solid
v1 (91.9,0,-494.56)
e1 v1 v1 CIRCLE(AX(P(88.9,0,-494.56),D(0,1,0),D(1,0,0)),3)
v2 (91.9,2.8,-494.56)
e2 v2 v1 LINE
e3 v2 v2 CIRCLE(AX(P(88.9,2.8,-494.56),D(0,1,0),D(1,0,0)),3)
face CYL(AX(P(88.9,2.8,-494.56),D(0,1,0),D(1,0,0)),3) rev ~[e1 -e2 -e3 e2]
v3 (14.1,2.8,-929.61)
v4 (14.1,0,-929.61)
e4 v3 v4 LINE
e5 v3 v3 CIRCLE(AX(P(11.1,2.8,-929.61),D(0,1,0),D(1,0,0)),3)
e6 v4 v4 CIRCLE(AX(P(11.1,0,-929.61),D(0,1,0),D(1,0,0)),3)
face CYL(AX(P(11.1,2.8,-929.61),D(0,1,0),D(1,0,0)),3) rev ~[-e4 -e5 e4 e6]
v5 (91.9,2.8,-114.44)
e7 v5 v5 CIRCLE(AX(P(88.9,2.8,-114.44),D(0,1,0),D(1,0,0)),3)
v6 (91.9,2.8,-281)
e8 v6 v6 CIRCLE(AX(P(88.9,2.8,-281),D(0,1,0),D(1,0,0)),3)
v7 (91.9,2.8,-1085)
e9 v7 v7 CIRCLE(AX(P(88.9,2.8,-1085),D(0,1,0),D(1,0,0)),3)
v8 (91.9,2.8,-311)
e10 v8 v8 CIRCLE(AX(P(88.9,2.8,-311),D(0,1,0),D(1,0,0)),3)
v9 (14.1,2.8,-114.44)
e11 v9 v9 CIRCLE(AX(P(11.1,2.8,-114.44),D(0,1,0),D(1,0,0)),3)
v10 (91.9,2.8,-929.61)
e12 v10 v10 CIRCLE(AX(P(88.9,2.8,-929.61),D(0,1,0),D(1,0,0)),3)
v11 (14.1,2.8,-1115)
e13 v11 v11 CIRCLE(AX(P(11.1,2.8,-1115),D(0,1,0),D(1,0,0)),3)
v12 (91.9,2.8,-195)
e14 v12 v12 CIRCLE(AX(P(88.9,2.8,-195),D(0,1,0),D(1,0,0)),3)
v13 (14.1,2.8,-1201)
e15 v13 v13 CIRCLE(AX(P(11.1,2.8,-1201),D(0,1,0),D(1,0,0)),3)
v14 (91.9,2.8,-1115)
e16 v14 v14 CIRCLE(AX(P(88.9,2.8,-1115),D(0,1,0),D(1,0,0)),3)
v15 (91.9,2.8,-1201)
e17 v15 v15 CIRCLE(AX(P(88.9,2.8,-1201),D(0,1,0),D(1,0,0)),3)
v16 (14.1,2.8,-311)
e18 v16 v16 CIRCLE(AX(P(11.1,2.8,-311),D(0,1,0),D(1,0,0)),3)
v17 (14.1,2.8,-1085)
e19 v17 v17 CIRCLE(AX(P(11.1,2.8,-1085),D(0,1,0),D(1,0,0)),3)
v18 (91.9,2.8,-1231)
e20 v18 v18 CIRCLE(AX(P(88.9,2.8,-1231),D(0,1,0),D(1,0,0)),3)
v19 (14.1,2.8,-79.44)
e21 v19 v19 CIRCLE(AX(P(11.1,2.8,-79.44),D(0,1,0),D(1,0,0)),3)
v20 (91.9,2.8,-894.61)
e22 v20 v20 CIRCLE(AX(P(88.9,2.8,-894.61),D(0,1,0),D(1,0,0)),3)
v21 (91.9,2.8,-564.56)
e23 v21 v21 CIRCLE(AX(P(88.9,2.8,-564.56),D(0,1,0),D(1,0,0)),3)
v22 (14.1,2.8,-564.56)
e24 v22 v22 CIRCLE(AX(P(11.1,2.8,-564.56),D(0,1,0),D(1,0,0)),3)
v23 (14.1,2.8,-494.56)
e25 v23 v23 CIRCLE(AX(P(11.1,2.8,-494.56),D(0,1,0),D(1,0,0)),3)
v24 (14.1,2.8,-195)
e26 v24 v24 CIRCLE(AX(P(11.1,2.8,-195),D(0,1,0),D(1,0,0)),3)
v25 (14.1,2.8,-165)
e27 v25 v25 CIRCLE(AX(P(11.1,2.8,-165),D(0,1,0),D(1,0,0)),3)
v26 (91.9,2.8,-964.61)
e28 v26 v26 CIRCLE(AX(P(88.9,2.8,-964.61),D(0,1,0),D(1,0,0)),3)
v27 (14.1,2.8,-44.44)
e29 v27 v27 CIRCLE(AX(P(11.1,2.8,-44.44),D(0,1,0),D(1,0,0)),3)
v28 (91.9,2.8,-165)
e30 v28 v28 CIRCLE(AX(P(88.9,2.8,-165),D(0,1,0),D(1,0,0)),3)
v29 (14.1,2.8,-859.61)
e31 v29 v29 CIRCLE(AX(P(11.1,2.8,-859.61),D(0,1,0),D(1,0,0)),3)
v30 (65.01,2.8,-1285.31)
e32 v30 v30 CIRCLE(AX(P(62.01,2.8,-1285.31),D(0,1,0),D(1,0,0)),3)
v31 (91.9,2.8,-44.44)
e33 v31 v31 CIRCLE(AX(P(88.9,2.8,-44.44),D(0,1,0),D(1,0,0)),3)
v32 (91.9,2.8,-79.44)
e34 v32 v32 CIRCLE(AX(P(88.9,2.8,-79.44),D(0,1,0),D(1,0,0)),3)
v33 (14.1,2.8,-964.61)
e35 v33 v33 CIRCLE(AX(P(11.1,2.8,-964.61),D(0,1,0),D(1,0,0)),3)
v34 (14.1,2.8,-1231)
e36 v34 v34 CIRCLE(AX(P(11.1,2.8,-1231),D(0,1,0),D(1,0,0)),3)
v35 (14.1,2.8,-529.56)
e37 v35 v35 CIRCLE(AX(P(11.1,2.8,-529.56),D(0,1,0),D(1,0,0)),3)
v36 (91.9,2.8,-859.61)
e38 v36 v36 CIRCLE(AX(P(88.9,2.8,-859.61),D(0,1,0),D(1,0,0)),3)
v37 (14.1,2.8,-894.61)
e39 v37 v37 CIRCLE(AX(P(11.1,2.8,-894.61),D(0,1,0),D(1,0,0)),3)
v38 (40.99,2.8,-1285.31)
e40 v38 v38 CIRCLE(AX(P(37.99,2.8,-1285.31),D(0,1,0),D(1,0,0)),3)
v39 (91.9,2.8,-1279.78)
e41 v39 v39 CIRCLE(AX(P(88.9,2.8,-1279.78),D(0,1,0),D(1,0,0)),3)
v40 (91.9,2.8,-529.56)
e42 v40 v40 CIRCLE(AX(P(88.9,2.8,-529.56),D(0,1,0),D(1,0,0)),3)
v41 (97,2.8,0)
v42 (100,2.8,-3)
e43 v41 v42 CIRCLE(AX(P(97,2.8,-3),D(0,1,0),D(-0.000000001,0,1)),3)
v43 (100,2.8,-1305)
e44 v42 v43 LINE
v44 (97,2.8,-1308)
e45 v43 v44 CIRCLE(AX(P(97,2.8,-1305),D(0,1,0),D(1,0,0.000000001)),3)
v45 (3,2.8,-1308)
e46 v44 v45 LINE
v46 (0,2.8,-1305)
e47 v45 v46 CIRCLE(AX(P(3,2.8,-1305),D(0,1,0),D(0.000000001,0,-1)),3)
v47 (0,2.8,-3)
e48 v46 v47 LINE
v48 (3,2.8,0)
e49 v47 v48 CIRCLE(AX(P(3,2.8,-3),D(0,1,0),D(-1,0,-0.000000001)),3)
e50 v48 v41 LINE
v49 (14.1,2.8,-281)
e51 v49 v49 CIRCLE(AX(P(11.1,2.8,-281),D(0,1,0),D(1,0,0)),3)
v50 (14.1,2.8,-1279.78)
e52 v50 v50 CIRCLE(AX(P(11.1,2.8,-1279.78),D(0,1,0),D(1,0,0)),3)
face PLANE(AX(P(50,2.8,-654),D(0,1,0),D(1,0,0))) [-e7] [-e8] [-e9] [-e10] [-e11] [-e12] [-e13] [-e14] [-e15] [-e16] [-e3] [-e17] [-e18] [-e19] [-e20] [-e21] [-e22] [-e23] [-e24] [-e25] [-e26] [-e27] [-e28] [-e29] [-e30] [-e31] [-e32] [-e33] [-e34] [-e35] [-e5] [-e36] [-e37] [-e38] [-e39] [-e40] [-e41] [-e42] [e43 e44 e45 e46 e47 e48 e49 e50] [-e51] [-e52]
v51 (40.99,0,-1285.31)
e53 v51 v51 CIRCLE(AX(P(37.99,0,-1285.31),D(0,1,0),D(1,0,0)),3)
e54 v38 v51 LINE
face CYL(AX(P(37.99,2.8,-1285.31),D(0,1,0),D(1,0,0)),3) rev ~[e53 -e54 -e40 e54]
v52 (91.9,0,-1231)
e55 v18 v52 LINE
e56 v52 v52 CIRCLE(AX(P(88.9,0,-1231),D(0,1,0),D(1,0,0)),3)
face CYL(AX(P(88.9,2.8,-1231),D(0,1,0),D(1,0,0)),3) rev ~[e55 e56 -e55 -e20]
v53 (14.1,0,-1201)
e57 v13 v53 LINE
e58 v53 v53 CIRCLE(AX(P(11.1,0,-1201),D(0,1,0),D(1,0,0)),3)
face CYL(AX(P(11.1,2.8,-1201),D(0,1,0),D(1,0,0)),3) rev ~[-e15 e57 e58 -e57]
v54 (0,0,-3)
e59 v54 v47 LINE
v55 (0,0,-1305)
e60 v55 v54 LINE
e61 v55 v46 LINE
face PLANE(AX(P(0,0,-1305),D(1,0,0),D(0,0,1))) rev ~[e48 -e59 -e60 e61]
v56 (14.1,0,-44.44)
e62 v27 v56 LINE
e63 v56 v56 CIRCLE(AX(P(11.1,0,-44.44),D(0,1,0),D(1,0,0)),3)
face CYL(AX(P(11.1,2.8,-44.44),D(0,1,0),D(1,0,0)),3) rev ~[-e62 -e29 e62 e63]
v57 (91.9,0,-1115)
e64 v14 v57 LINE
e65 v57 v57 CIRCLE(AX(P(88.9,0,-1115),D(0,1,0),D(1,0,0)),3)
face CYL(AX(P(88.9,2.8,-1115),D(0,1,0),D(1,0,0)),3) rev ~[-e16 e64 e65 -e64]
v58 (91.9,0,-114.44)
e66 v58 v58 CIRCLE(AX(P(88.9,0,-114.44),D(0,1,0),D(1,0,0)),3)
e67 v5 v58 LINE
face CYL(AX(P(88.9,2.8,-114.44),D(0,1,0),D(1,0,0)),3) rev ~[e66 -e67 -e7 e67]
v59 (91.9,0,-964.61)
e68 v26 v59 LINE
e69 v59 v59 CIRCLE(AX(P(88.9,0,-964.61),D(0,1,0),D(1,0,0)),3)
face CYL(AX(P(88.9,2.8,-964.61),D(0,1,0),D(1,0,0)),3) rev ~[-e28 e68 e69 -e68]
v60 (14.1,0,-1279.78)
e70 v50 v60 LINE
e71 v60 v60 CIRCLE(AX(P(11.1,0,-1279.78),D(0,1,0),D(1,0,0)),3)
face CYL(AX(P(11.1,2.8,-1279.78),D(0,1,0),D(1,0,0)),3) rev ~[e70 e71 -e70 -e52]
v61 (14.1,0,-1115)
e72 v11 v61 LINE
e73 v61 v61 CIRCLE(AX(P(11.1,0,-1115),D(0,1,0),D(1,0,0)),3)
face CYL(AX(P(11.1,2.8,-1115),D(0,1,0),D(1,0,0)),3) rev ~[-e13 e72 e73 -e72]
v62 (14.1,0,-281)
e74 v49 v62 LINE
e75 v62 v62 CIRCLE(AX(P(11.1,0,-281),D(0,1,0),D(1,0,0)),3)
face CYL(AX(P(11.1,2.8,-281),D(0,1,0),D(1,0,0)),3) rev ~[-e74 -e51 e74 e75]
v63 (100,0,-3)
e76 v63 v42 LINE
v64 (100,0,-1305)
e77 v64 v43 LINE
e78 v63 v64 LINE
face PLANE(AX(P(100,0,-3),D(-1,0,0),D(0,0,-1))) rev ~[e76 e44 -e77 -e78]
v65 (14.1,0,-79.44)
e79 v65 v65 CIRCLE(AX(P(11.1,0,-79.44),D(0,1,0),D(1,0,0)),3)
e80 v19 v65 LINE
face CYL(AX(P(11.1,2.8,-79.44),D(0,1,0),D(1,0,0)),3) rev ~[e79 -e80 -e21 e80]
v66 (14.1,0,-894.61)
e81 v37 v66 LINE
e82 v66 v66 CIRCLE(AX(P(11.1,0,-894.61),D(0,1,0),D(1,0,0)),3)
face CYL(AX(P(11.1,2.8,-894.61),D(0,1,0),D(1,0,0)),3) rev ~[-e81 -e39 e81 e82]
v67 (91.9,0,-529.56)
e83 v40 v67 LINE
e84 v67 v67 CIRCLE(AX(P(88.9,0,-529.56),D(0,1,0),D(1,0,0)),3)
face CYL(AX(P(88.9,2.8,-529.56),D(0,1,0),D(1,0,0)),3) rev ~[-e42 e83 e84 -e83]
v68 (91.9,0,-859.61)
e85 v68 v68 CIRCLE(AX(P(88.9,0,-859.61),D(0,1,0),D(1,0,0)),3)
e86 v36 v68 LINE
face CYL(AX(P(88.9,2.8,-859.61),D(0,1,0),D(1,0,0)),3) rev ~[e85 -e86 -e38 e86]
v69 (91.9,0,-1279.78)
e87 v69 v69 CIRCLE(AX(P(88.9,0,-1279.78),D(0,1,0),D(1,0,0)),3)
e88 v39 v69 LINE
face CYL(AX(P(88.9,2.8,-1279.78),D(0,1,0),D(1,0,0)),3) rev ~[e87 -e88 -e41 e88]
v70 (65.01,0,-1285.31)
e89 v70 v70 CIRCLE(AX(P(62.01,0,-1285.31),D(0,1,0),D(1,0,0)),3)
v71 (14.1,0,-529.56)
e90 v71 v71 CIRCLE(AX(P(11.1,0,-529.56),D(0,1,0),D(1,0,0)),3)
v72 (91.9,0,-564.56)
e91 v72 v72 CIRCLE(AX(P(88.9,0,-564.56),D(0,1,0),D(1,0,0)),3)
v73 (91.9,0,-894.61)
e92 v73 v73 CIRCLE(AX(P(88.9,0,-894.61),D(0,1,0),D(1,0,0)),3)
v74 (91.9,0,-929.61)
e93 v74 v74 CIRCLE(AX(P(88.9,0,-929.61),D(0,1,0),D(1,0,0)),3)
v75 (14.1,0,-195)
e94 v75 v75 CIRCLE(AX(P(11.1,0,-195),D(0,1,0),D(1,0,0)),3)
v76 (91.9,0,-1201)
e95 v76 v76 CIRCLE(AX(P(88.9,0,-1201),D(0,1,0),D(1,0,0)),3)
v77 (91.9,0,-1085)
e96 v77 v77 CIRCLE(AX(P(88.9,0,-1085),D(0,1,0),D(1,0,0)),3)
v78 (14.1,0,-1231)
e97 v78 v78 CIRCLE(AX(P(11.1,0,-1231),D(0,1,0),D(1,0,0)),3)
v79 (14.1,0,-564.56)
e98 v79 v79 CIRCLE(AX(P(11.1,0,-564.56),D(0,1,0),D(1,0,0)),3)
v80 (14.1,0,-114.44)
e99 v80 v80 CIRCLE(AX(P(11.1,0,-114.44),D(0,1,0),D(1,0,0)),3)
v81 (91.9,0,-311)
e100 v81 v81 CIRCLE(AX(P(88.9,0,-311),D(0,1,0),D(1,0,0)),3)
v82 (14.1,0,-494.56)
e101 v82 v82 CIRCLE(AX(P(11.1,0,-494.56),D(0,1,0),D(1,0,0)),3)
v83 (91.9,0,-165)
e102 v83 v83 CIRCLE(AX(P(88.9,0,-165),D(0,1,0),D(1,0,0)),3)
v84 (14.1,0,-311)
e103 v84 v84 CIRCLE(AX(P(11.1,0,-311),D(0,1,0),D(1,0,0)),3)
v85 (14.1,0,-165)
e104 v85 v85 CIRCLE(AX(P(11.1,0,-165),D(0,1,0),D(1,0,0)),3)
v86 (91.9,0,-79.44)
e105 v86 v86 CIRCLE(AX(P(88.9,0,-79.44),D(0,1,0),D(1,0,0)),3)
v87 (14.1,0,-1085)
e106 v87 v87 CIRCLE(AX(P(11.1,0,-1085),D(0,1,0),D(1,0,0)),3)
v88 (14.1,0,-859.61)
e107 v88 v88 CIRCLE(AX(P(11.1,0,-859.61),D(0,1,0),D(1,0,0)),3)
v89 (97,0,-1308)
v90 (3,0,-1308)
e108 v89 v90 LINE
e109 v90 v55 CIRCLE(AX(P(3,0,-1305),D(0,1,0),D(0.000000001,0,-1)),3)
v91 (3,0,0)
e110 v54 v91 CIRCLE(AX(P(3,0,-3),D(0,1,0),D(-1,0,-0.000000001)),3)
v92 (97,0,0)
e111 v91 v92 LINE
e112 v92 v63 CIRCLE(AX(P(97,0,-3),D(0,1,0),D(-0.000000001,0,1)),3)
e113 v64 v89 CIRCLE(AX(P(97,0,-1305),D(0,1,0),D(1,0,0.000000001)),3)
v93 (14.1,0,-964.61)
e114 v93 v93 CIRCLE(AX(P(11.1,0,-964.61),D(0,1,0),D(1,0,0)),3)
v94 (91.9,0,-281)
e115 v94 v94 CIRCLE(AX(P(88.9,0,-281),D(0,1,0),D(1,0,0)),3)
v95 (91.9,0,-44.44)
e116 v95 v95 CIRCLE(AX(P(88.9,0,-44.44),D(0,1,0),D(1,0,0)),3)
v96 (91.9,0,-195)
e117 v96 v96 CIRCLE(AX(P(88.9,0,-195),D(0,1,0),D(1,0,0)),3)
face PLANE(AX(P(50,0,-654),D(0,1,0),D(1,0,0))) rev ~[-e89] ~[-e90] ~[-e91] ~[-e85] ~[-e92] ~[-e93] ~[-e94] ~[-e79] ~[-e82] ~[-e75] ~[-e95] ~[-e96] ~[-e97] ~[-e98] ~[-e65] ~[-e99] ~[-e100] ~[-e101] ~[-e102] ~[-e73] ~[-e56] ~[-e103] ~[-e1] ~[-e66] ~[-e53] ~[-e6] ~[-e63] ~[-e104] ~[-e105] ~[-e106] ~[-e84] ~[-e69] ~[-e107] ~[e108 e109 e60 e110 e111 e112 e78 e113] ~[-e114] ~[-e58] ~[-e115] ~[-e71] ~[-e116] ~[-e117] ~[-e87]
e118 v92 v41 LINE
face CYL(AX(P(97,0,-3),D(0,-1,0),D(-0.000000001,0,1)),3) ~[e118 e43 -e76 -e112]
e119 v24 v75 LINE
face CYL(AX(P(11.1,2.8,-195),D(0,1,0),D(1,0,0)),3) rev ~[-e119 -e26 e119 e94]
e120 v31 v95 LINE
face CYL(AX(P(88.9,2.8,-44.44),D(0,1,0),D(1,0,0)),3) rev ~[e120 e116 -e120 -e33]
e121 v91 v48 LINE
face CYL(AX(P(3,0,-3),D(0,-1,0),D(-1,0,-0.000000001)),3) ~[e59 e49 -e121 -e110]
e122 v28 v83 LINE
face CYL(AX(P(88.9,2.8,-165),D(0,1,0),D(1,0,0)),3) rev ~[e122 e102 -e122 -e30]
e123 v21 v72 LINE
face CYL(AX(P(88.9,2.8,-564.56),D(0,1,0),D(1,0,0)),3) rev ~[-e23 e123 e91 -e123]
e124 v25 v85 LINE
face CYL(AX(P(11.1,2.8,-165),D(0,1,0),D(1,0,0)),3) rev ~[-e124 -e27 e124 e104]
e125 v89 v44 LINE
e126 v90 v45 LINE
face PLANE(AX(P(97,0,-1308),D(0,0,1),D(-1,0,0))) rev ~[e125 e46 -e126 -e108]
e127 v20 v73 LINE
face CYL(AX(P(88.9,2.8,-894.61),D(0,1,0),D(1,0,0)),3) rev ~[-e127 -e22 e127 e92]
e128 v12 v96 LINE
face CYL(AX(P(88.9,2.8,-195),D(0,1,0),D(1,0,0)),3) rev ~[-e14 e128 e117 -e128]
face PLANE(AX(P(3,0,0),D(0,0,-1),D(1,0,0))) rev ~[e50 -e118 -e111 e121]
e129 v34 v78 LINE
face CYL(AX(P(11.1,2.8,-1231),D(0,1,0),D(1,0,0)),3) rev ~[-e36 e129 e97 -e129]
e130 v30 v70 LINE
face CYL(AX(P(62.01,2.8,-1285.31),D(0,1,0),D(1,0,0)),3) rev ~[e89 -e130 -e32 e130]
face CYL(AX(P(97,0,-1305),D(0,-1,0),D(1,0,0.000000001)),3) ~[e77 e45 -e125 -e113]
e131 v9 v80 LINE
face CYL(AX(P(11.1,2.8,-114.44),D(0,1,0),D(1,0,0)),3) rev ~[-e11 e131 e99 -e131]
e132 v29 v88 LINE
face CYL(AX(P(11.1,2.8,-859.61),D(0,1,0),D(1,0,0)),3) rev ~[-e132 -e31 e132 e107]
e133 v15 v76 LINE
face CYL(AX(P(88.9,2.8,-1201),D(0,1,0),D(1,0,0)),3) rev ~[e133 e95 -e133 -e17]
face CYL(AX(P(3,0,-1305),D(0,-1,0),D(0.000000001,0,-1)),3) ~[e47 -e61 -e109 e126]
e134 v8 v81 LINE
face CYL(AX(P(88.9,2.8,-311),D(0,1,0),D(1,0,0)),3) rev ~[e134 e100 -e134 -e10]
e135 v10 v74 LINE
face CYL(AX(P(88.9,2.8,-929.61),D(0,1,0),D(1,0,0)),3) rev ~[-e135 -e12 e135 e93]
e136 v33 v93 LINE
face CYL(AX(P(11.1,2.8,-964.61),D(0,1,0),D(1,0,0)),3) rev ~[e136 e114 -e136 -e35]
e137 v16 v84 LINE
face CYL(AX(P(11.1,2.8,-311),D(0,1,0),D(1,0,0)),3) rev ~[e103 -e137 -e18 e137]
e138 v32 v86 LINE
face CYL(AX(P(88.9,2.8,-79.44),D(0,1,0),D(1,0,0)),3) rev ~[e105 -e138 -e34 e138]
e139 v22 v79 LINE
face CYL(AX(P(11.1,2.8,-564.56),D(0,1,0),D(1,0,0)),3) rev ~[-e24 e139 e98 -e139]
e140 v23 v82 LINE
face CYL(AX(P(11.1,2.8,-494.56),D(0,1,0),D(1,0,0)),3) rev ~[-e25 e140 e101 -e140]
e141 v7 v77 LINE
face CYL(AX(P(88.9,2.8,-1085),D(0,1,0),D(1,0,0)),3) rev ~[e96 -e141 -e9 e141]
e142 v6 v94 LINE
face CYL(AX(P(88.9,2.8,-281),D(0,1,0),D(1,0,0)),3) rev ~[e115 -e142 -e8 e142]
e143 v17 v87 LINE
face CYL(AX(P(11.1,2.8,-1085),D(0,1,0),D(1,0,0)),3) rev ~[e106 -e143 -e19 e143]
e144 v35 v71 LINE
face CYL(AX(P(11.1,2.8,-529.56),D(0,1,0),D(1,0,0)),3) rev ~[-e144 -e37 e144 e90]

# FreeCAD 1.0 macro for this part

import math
import FreeCAD as App
import Part
import Sketcher
Q = App.Units.Quantity

doc = App.newDocument("Part")
body = doc.addObject("PartDesign::Body", "Body")

# Sketch on XZ plane
sketch1 = body.newObject("Sketcher::SketchObject", "Sketch")
sketch1.AttachmentSupport = (doc.getObject("XZ_Plane"), [""])
sketch1.MapMode = "FlatFace"
sketch1.addGeometry(Part.LineSegment(App.Vector(3, 0, 0), App.Vector(97, 0, 0)), False)
sketch1.addGeometry(Part.ArcOfCircle(Part.Circle(App.Vector(97, -3, 0), App.Vector(0, 0, 1), 3), math.radians(0), math.radians(90)), False)
sketch1.addGeometry(Part.LineSegment(App.Vector(100, -3, 0), App.Vector(100, -1305, 0)), False)
sketch1.addGeometry(Part.ArcOfCircle(Part.Circle(App.Vector(97, -1305, 0), App.Vector(0, 0, 1), 3), math.radians(-90), math.radians(0)), False)
sketch1.addGeometry(Part.LineSegment(App.Vector(97, -1308, 0), App.Vector(3, -1308, 0)), False)
sketch1.addGeometry(Part.ArcOfCircle(Part.Circle(App.Vector(3, -1305, 0), App.Vector(0, 0, 1), 3), math.radians(180), math.radians(270)), False)
sketch1.addGeometry(Part.LineSegment(App.Vector(0, -1305, 0), App.Vector(0, -3, 0)), False)
sketch1.addGeometry(Part.ArcOfCircle(Part.Circle(App.Vector(3, -3, 0), App.Vector(0, 0, 1), 3), math.radians(90), math.radians(180)), False)
sketch1.addConstraint(Sketcher.Constraint("Tangent", 0, 2, 1, 2))
sketch1.addConstraint(Sketcher.Constraint("Tangent", 1, 1, 2, 1))
sketch1.addConstraint(Sketcher.Constraint("Tangent", 2, 2, 3, 2))
sketch1.addConstraint(Sketcher.Constraint("Tangent", 3, 1, 4, 1))
sketch1.addConstraint(Sketcher.Constraint("Tangent", 4, 2, 5, 2))
sketch1.addConstraint(Sketcher.Constraint("Tangent", 5, 1, 6, 1))
sketch1.addConstraint(Sketcher.Constraint("Tangent", 6, 2, 7, 2))
sketch1.addConstraint(Sketcher.Constraint("Tangent", 7, 1, 0, 1))
sketch1.addConstraint(Sketcher.Constraint("Horizontal", 0))
sketch1.addConstraint(Sketcher.Constraint("Vertical", 2))
sketch1.addConstraint(Sketcher.Constraint("Horizontal", 4))
sketch1.addConstraint(Sketcher.Constraint("Vertical", 6))
sketch1.addConstraint(Sketcher.Constraint("Equal", 1, 3))
sketch1.addConstraint(Sketcher.Constraint("Equal", 3, 5))
sketch1.addConstraint(Sketcher.Constraint("Equal", 5, 7))
sketch1.addConstraint(Sketcher.Constraint("PointOnObject", 0, 2, -1))
sketch1.addConstraint(Sketcher.Constraint("PointOnObject", 5, 1, -2))
sketch1.addConstraint(Sketcher.Constraint("Radius", 1, Q("3 mm")))
sketch1.addConstraint(Sketcher.Constraint("DistanceX", 0, 1, 0, 2, Q("94 mm")))
sketch1.addConstraint(Sketcher.Constraint("DistanceY", 2, 2, 2, 1, Q("1302 mm")))
pad1 = body.newObject("PartDesign::Pad", "Pad")
pad1.Profile = sketch1
pad1.Length = 2.8
pad1.Reversed = True

# Sketch on XZ plane
sketch2 = body.newObject("Sketcher::SketchObject", "Sketch001")
sketch2.AttachmentSupport = (doc.getObject("XZ_Plane"), [""])
sketch2.MapMode = "FlatFace"
sketch2.AttachmentOffset = App.Placement(App.Vector(0, 0, -2.8), App.Rotation())
sketch2.addGeometry(Part.Circle(App.Vector(88.9, -1279.78, 0), App.Vector(0, 0, 1), 3), False)
sketch2.addConstraint(Sketcher.Constraint("Diameter", 0, Q("6 mm")))
sketch2.addConstraint(Sketcher.Constraint("DistanceX", -1, 1, 0, 3, Q("88.9 mm")))
sketch2.addConstraint(Sketcher.Constraint("DistanceY", 0, 3, -1, 1, Q("1279.78 mm")))
pocket1 = body.newObject("PartDesign::Pocket", "Pocket")
pocket1.Profile = sketch2
pocket1.Type = "UpToFirst"
pocket1.Reversed = True

# Sketch on XZ plane
sketch3 = body.newObject("Sketcher::SketchObject", "Sketch002")
sketch3.AttachmentSupport = (doc.getObject("XZ_Plane"), [""])
sketch3.MapMode = "FlatFace"
sketch3.AttachmentOffset = App.Placement(App.Vector(0, 0, -2.8), App.Rotation())
sketch3.addGeometry(Part.Circle(App.Vector(88.9, -929.61, 0), App.Vector(0, 0, 1), 3), False)
sketch3.addConstraint(Sketcher.Constraint("Diameter", 0, Q("6 mm")))
sketch3.addConstraint(Sketcher.Constraint("DistanceX", -1, 1, 0, 3, Q("88.9 mm")))
sketch3.addConstraint(Sketcher.Constraint("DistanceY", 0, 3, -1, 1, Q("929.61 mm")))
pocket2 = body.newObject("PartDesign::Pocket", "Pocket001")
pocket2.Profile = sketch3
pocket2.Type = "UpToFirst"
pocket2.Reversed = True

# Sketch on XZ plane
sketch4 = body.newObject("Sketcher::SketchObject", "Sketch003")
sketch4.AttachmentSupport = (doc.getObject("XZ_Plane"), [""])
sketch4.MapMode = "FlatFace"
sketch4.AttachmentOffset = App.Placement(App.Vector(0, 0, -2.8), App.Rotation())
sketch4.addGeometry(Part.Circle(App.Vector(88.9, -529.56, 0), App.Vector(0, 0, 1), 3), False)
sketch4.addConstraint(Sketcher.Constraint("Diameter", 0, Q("6 mm")))
sketch4.addConstraint(Sketcher.Constraint("DistanceX", -1, 1, 0, 3, Q("88.9 mm")))
sketch4.addConstraint(Sketcher.Constraint("DistanceY", 0, 3, -1, 1, Q("529.56 mm")))
pocket3 = body.newObject("PartDesign::Pocket", "Pocket002")
pocket3.Profile = sketch4
pocket3.Type = "UpToFirst"
pocket3.Reversed = True

# Sketch on XZ plane
sketch5 = body.newObject("Sketcher::SketchObject", "Sketch004")
sketch5.AttachmentSupport = (doc.getObject("XZ_Plane"), [""])
sketch5.MapMode = "FlatFace"
sketch5.AttachmentOffset = App.Placement(App.Vector(0, 0, -2.8), App.Rotation())
sketch5.addGeometry(Part.Circle(App.Vector(88.9, -79.44, 0), App.Vector(0, 0, 1), 3), False)
sketch5.addConstraint(Sketcher.Constraint("Diameter", 0, Q("6 mm")))
sketch5.addConstraint(Sketcher.Constraint("DistanceX", -1, 1, 0, 3, Q("88.9 mm")))
sketch5.addConstraint(Sketcher.Constraint("DistanceY", 0, 3, -1, 1, Q("79.44 mm")))
pocket4 = body.newObject("PartDesign::Pocket", "Pocket003")
pocket4.Profile = sketch5
pocket4.Type = "UpToFirst"
pocket4.Reversed = True

# Sketch on XZ plane
sketch6 = body.newObject("Sketcher::SketchObject", "Sketch005")
sketch6.AttachmentSupport = (doc.getObject("XZ_Plane"), [""])
sketch6.MapMode = "FlatFace"
sketch6.AttachmentOffset = App.Placement(App.Vector(0, 0, -2.8), App.Rotation())
sketch6.addGeometry(Part.Circle(App.Vector(11.1, -79.44, 0), App.Vector(0, 0, 1), 3), False)
sketch6.addConstraint(Sketcher.Constraint("Diameter", 0, Q("6 mm")))
sketch6.addConstraint(Sketcher.Constraint("DistanceX", -1, 1, 0, 3, Q("11.1 mm")))
sketch6.addConstraint(Sketcher.Constraint("DistanceY", 0, 3, -1, 1, Q("79.44 mm")))
pocket5 = body.newObject("PartDesign::Pocket", "Pocket004")
pocket5.Profile = sketch6
pocket5.Type = "UpToFirst"
pocket5.Reversed = True

# Sketch on XZ plane
sketch7 = body.newObject("Sketcher::SketchObject", "Sketch006")
sketch7.AttachmentSupport = (doc.getObject("XZ_Plane"), [""])
sketch7.MapMode = "FlatFace"
sketch7.AttachmentOffset = App.Placement(App.Vector(0, 0, -2.8), App.Rotation())
sketch7.addGeometry(Part.Circle(App.Vector(11.1, -529.56, 0), App.Vector(0, 0, 1), 3), False)
sketch7.addConstraint(Sketcher.Constraint("Diameter", 0, Q("6 mm")))
sketch7.addConstraint(Sketcher.Constraint("DistanceX", -1, 1, 0, 3, Q("11.1 mm")))
sketch7.addConstraint(Sketcher.Constraint("DistanceY", 0, 3, -1, 1, Q("529.56 mm")))
pocket6 = body.newObject("PartDesign::Pocket", "Pocket005")
pocket6.Profile = sketch7
pocket6.Type = "UpToFirst"
pocket6.Reversed = True

# Sketch on XZ plane
sketch8 = body.newObject("Sketcher::SketchObject", "Sketch007")
sketch8.AttachmentSupport = (doc.getObject("XZ_Plane"), [""])
sketch8.MapMode = "FlatFace"
sketch8.AttachmentOffset = App.Placement(App.Vector(0, 0, -2.8), App.Rotation())
sketch8.addGeometry(Part.Circle(App.Vector(11.1, -929.61, 0), App.Vector(0, 0, 1), 3), False)
sketch8.addConstraint(Sketcher.Constraint("Diameter", 0, Q("6 mm")))
sketch8.addConstraint(Sketcher.Constraint("DistanceX", -1, 1, 0, 3, Q("11.1 mm")))
sketch8.addConstraint(Sketcher.Constraint("DistanceY", 0, 3, -1, 1, Q("929.61 mm")))
pocket7 = body.newObject("PartDesign::Pocket", "Pocket006")
pocket7.Profile = sketch8
pocket7.Type = "UpToFirst"
pocket7.Reversed = True

# Sketch on XZ plane
sketch9 = body.newObject("Sketcher::SketchObject", "Sketch008")
sketch9.AttachmentSupport = (doc.getObject("XZ_Plane"), [""])
sketch9.MapMode = "FlatFace"
sketch9.AttachmentOffset = App.Placement(App.Vector(0, 0, -2.8), App.Rotation())
sketch9.addGeometry(Part.Circle(App.Vector(11.1, -1279.78, 0), App.Vector(0, 0, 1), 3), False)
sketch9.addConstraint(Sketcher.Constraint("Diameter", 0, Q("6 mm")))
sketch9.addConstraint(Sketcher.Constraint("DistanceX", -1, 1, 0, 3, Q("11.1 mm")))
sketch9.addConstraint(Sketcher.Constraint("DistanceY", 0, 3, -1, 1, Q("1279.78 mm")))
pocket8 = body.newObject("PartDesign::Pocket", "Pocket007")
pocket8.Profile = sketch9
pocket8.Type = "UpToFirst"
pocket8.Reversed = True

# Sketch on XZ plane
sketch10 = body.newObject("Sketcher::SketchObject", "Sketch009")
sketch10.AttachmentSupport = (doc.getObject("XZ_Plane"), [""])
sketch10.MapMode = "FlatFace"
sketch10.AttachmentOffset = App.Placement(App.Vector(0, 0, -2.8), App.Rotation())
sketch10.addGeometry(Part.Circle(App.Vector(88.9, -1201, 0), App.Vector(0, 0, 1), 3), False)
sketch10.addConstraint(Sketcher.Constraint("Diameter", 0, Q("6 mm")))
sketch10.addConstraint(Sketcher.Constraint("DistanceY", 0, 3, -1, 1, Q("1201 mm")))
sketch10.addConstraint(Sketcher.Constraint("DistanceX", -1, 1, 0, 3, Q("88.9 mm")))
pocket9 = body.newObject("PartDesign::Pocket", "Pocket008")
pocket9.Profile = sketch10
pocket9.Type = "UpToFirst"
pocket9.Reversed = True

# Sketch on XZ plane
sketch11 = body.newObject("Sketcher::SketchObject", "Sketch010")
sketch11.AttachmentSupport = (doc.getObject("XZ_Plane"), [""])
sketch11.MapMode = "FlatFace"
sketch11.AttachmentOffset = App.Placement(App.Vector(0, 0, -2.8), App.Rotation())
sketch11.addGeometry(Part.Circle(App.Vector(88.9, -1115, 0), App.Vector(0, 0, 1), 3), False)
sketch11.addConstraint(Sketcher.Constraint("Diameter", 0, Q("6 mm")))
sketch11.addConstraint(Sketcher.Constraint("DistanceY", 0, 3, -1, 1, Q("1115 mm")))
sketch11.addConstraint(Sketcher.Constraint("DistanceX", -1, 1, 0, 3, Q("88.9 mm")))
pocket10 = body.newObject("PartDesign::Pocket", "Pocket009")
pocket10.Profile = sketch11
pocket10.Type = "UpToFirst"
pocket10.Reversed = True

# Sketch on XZ plane
sketch12 = body.newObject("Sketcher::SketchObject", "Sketch011")
sketch12.AttachmentSupport = (doc.getObject("XZ_Plane"), [""])
sketch12.MapMode = "FlatFace"
sketch12.AttachmentOffset = App.Placement(App.Vector(0, 0, -2.8), App.Rotation())
sketch12.addGeometry(Part.Circle(App.Vector(11.1, -1115, 0), App.Vector(0, 0, 1), 3), False)
sketch12.addConstraint(Sketcher.Constraint("Diameter", 0, Q("6 mm")))
sketch12.addConstraint(Sketcher.Constraint("DistanceY", 0, 3, -1, 1, Q("1115 mm")))
sketch12.addConstraint(Sketcher.Constraint("DistanceX", -1, 1, 0, 3, Q("11.1 mm")))
pocket11 = body.newObject("PartDesign::Pocket", "Pocket010")
pocket11.Profile = sketch12
pocket11.Type = "UpToFirst"
pocket11.Reversed = True

# Sketch on XZ plane
sketch13 = body.newObject("Sketcher::SketchObject", "Sketch012")
sketch13.AttachmentSupport = (doc.getObject("XZ_Plane"), [""])
sketch13.MapMode = "FlatFace"
sketch13.AttachmentOffset = App.Placement(App.Vector(0, 0, -2.8), App.Rotation())
sketch13.addGeometry(Part.Circle(App.Vector(11.1, -1201, 0), App.Vector(0, 0, 1), 3), False)
sketch13.addConstraint(Sketcher.Constraint("Diameter", 0, Q("6 mm")))
sketch13.addConstraint(Sketcher.Constraint("DistanceY", 0, 3, -1, 1, Q("1201 mm")))
sketch13.addConstraint(Sketcher.Constraint("DistanceX", -1, 1, 0, 3, Q("11.1 mm")))
pocket12 = body.newObject("PartDesign::Pocket", "Pocket011")
pocket12.Profile = sketch13
pocket12.Type = "UpToFirst"
pocket12.Reversed = True

# Sketch on XZ plane
sketch14 = body.newObject("Sketcher::SketchObject", "Sketch013")
sketch14.AttachmentSupport = (doc.getObject("XZ_Plane"), [""])
sketch14.MapMode = "FlatFace"
sketch14.AttachmentOffset = App.Placement(App.Vector(0, 0, -2.8), App.Rotation())
sketch14.addGeometry(Part.Circle(App.Vector(88.9, -281, 0), App.Vector(0, 0, 1), 3), False)
sketch14.addConstraint(Sketcher.Constraint("Diameter", 0, Q("6 mm")))
sketch14.addConstraint(Sketcher.Constraint("DistanceY", 0, 3, -1, 1, Q("281 mm")))
sketch14.addConstraint(Sketcher.Constraint("DistanceX", -1, 1, 0, 3, Q("88.9 mm")))
pocket13 = body.newObject("PartDesign::Pocket", "Pocket012")
pocket13.Profile = sketch14
pocket13.Type = "UpToFirst"
pocket13.Reversed = True

# Sketch on XZ plane
sketch15 = body.newObject("Sketcher::SketchObject", "Sketch014")
sketch15.AttachmentSupport = (doc.getObject("XZ_Plane"), [""])
sketch15.MapMode = "FlatFace"
sketch15.AttachmentOffset = App.Placement(App.Vector(0, 0, -2.8), App.Rotation())
sketch15.addGeometry(Part.Circle(App.Vector(88.9, -195, 0), App.Vector(0, 0, 1), 3), False)
sketch15.addConstraint(Sketcher.Constraint("Diameter", 0, Q("6 mm")))
sketch15.addConstraint(Sketcher.Constraint("DistanceY", 0, 3, -1, 1, Q("195 mm")))
sketch15.addConstraint(Sketcher.Constraint("DistanceX", -1, 1, 0, 3, Q("88.9 mm")))
pocket14 = body.newObject("PartDesign::Pocket", "Pocket013")
pocket14.Profile = sketch15
pocket14.Type = "UpToFirst"
pocket14.Reversed = True

# Sketch on XZ plane
sketch16 = body.newObject("Sketcher::SketchObject", "Sketch015")
sketch16.AttachmentSupport = (doc.getObject("XZ_Plane"), [""])
sketch16.MapMode = "FlatFace"
sketch16.AttachmentOffset = App.Placement(App.Vector(0, 0, -2.8), App.Rotation())
sketch16.addGeometry(Part.Circle(App.Vector(11.1, -195, 0), App.Vector(0, 0, 1), 3), False)
sketch16.addConstraint(Sketcher.Constraint("Diameter", 0, Q("6 mm")))
sketch16.addConstraint(Sketcher.Constraint("DistanceY", 0, 3, -1, 1, Q("195 mm")))
sketch16.addConstraint(Sketcher.Constraint("DistanceX", -1, 1, 0, 3, Q("11.1 mm")))
pocket15 = body.newObject("PartDesign::Pocket", "Pocket014")
pocket15.Profile = sketch16
pocket15.Type = "UpToFirst"
pocket15.Reversed = True

# Sketch on XZ plane
sketch17 = body.newObject("Sketcher::SketchObject", "Sketch016")
sketch17.AttachmentSupport = (doc.getObject("XZ_Plane"), [""])
sketch17.MapMode = "FlatFace"
sketch17.AttachmentOffset = App.Placement(App.Vector(0, 0, -2.8), App.Rotation())
sketch17.addGeometry(Part.Circle(App.Vector(11.1, -281, 0), App.Vector(0, 0, 1), 3), False)
sketch17.addConstraint(Sketcher.Constraint("Diameter", 0, Q("6 mm")))
sketch17.addConstraint(Sketcher.Constraint("DistanceY", 0, 3, -1, 1, Q("281 mm")))
sketch17.addConstraint(Sketcher.Constraint("DistanceX", -1, 1, 0, 3, Q("11.1 mm")))
pocket16 = body.newObject("PartDesign::Pocket", "Pocket015")
pocket16.Profile = sketch17
pocket16.Type = "UpToFirst"
pocket16.Reversed = True

# Sketch on XZ plane
sketch18 = body.newObject("Sketcher::SketchObject", "Sketch017")
sketch18.AttachmentSupport = (doc.getObject("XZ_Plane"), [""])
sketch18.MapMode = "FlatFace"
sketch18.AttachmentOffset = App.Placement(App.Vector(0, 0, -2.8), App.Rotation())
sketch18.addGeometry(Part.Circle(App.Vector(88.9, -1231, 0), App.Vector(0, 0, 1), 3), False)
sketch18.addConstraint(Sketcher.Constraint("Diameter", 0, Q("6 mm")))
sketch18.addConstraint(Sketcher.Constraint("DistanceY", 0, 3, -1, 1, Q("1231 mm")))
sketch18.addConstraint(Sketcher.Constraint("DistanceX", -1, 1, 0, 3, Q("88.9 mm")))
pocket17 = body.newObject("PartDesign::Pocket", "Pocket016")
pocket17.Profile = sketch18
pocket17.Type = "UpToFirst"
pocket17.Reversed = True

# Sketch on XZ plane
sketch19 = body.newObject("Sketcher::SketchObject", "Sketch018")
sketch19.AttachmentSupport = (doc.getObject("XZ_Plane"), [""])
sketch19.MapMode = "FlatFace"
sketch19.AttachmentOffset = App.Placement(App.Vector(0, 0, -2.8), App.Rotation())
sketch19.addGeometry(Part.Circle(App.Vector(88.9, -1085, 0), App.Vector(0, 0, 1), 3), False)
sketch19.addConstraint(Sketcher.Constraint("Diameter", 0, Q("6 mm")))
sketch19.addConstraint(Sketcher.Constraint("DistanceY", 0, 3, -1, 1, Q("1085 mm")))
sketch19.addConstraint(Sketcher.Constraint("DistanceX", -1, 1, 0, 3, Q("88.9 mm")))
pocket18 = body.newObject("PartDesign::Pocket", "Pocket017")
pocket18.Profile = sketch19
pocket18.Type = "UpToFirst"
pocket18.Reversed = True

# Sketch on XZ plane
sketch20 = body.newObject("Sketcher::SketchObject", "Sketch019")
sketch20.AttachmentSupport = (doc.getObject("XZ_Plane"), [""])
sketch20.MapMode = "FlatFace"
sketch20.AttachmentOffset = App.Placement(App.Vector(0, 0, -2.8), App.Rotation())
sketch20.addGeometry(Part.Circle(App.Vector(88.9, -964.61, 0), App.Vector(0, 0, 1), 3), False)
sketch20.addConstraint(Sketcher.Constraint("Diameter", 0, Q("6 mm")))
sketch20.addConstraint(Sketcher.Constraint("DistanceX", -1, 1, 0, 3, Q("88.9 mm")))
sketch20.addConstraint(Sketcher.Constraint("DistanceY", 0, 3, -1, 1, Q("964.61 mm")))
pocket19 = body.newObject("PartDesign::Pocket", "Pocket018")
pocket19.Profile = sketch20
pocket19.Type = "UpToFirst"
pocket19.Reversed = True

# Sketch on XZ plane
sketch21 = body.newObject("Sketcher::SketchObject", "Sketch020")
sketch21.AttachmentSupport = (doc.getObject("XZ_Plane"), [""])
sketch21.MapMode = "FlatFace"
sketch21.AttachmentOffset = App.Placement(App.Vector(0, 0, -2.8), App.Rotation())
sketch21.addGeometry(Part.Circle(App.Vector(88.9, -894.61, 0), App.Vector(0, 0, 1), 3), False)
sketch21.addConstraint(Sketcher.Constraint("Diameter", 0, Q("6 mm")))
sketch21.addConstraint(Sketcher.Constraint("DistanceX", -1, 1, 0, 3, Q("88.9 mm")))
sketch21.addConstraint(Sketcher.Constraint("DistanceY", 0, 3, -1, 1, Q("894.61 mm")))
pocket20 = body.newObject("PartDesign::Pocket", "Pocket019")
pocket20.Profile = sketch21
pocket20.Type = "UpToFirst"
pocket20.Reversed = True

# Sketch on XZ plane
sketch22 = body.newObject("Sketcher::SketchObject", "Sketch021")
sketch22.AttachmentSupport = (doc.getObject("XZ_Plane"), [""])
sketch22.MapMode = "FlatFace"
sketch22.AttachmentOffset = App.Placement(App.Vector(0, 0, -2.8), App.Rotation())
sketch22.addGeometry(Part.Circle(App.Vector(88.9, -564.56, 0), App.Vector(0, 0, 1), 3), False)
sketch22.addConstraint(Sketcher.Constraint("Diameter", 0, Q("6 mm")))
sketch22.addConstraint(Sketcher.Constraint("DistanceX", -1, 1, 0, 3, Q("88.9 mm")))
sketch22.addConstraint(Sketcher.Constraint("DistanceY", 0, 3, -1, 1, Q("564.56 mm")))
pocket21 = body.newObject("PartDesign::Pocket", "Pocket020")
pocket21.Profile = sketch22
pocket21.Type = "UpToFirst"
pocket21.Reversed = True

# Sketch on XZ plane
sketch23 = body.newObject("Sketcher::SketchObject", "Sketch022")
sketch23.AttachmentSupport = (doc.getObject("XZ_Plane"), [""])
sketch23.MapMode = "FlatFace"
sketch23.AttachmentOffset = App.Placement(App.Vector(0, 0, -2.8), App.Rotation())
sketch23.addGeometry(Part.Circle(App.Vector(88.9, -494.56, 0), App.Vector(0, 0, 1), 3), False)
sketch23.addConstraint(Sketcher.Constraint("Diameter", 0, Q("6 mm")))
sketch23.addConstraint(Sketcher.Constraint("DistanceX", -1, 1, 0, 3, Q("88.9 mm")))
sketch23.addConstraint(Sketcher.Constraint("DistanceY", 0, 3, -1, 1, Q("494.56 mm")))
pocket22 = body.newObject("PartDesign::Pocket", "Pocket021")
pocket22.Profile = sketch23
pocket22.Type = "UpToFirst"
pocket22.Reversed = True

# Sketch on XZ plane
sketch24 = body.newObject("Sketcher::SketchObject", "Sketch023")
sketch24.AttachmentSupport = (doc.getObject("XZ_Plane"), [""])
sketch24.MapMode = "FlatFace"
sketch24.AttachmentOffset = App.Placement(App.Vector(0, 0, -2.8), App.Rotation())
sketch24.addGeometry(Part.Circle(App.Vector(88.9, -114.44, 0), App.Vector(0, 0, 1), 3), False)
sketch24.addConstraint(Sketcher.Constraint("Diameter", 0, Q("6 mm")))
sketch24.addConstraint(Sketcher.Constraint("DistanceX", -1, 1, 0, 3, Q("88.9 mm")))
sketch24.addConstraint(Sketcher.Constraint("DistanceY", 0, 3, -1, 1, Q("114.44 mm")))
pocket23 = body.newObject("PartDesign::Pocket", "Pocket022")
pocket23.Profile = sketch24
pocket23.Type = "UpToFirst"
pocket23.Reversed = True

# Sketch on XZ plane
sketch25 = body.newObject("Sketcher::SketchObject", "Sketch024")
sketch25.AttachmentSupport = (doc.getObject("XZ_Plane"), [""])
sketch25.MapMode = "FlatFace"
sketch25.AttachmentOffset = App.Placement(App.Vector(0, 0, -2.8), App.Rotation())
sketch25.addGeometry(Part.Circle(App.Vector(88.9, -44.44, 0), App.Vector(0, 0, 1), 3), False)
sketch25.addConstraint(Sketcher.Constraint("Diameter", 0, Q("6 mm")))
sketch25.addConstraint(Sketcher.Constraint("DistanceX", -1, 1, 0, 3, Q("88.9 mm")))
sketch25.addConstraint(Sketcher.Constraint("DistanceY", 0, 3, -1, 1, Q("44.44 mm")))
pocket24 = body.newObject("PartDesign::Pocket", "Pocket023")
pocket24.Profile = sketch25
pocket24.Type = "UpToFirst"
pocket24.Reversed = True

# Sketch on XZ plane
sketch26 = body.newObject("Sketcher::SketchObject", "Sketch025")
sketch26.AttachmentSupport = (doc.getObject("XZ_Plane"), [""])
sketch26.MapMode = "FlatFace"
sketch26.AttachmentOffset = App.Placement(App.Vector(0, 0, -2.8), App.Rotation())
sketch26.addGeometry(Part.Circle(App.Vector(88.9, -311, 0), App.Vector(0, 0, 1), 3), False)
sketch26.addConstraint(Sketcher.Constraint("Diameter", 0, Q("6 mm")))
sketch26.addConstraint(Sketcher.Constraint("DistanceY", 0, 3, -1, 1, Q("311 mm")))
sketch26.addConstraint(Sketcher.Constraint("DistanceX", -1, 1, 0, 3, Q("88.9 mm")))
pocket25 = body.newObject("PartDesign::Pocket", "Pocket024")
pocket25.Profile = sketch26
pocket25.Type = "UpToFirst"
pocket25.Reversed = True

# Sketch on XZ plane
sketch27 = body.newObject("Sketcher::SketchObject", "Sketch026")
sketch27.AttachmentSupport = (doc.getObject("XZ_Plane"), [""])
sketch27.MapMode = "FlatFace"
sketch27.AttachmentOffset = App.Placement(App.Vector(0, 0, -2.8), App.Rotation())
sketch27.addGeometry(Part.Circle(App.Vector(88.9, -165, 0), App.Vector(0, 0, 1), 3), False)
sketch27.addConstraint(Sketcher.Constraint("Diameter", 0, Q("6 mm")))
sketch27.addConstraint(Sketcher.Constraint("DistanceY", 0, 3, -1, 1, Q("165 mm")))
sketch27.addConstraint(Sketcher.Constraint("DistanceX", -1, 1, 0, 3, Q("88.9 mm")))
pocket26 = body.newObject("PartDesign::Pocket", "Pocket025")
pocket26.Profile = sketch27
pocket26.Type = "UpToFirst"
pocket26.Reversed = True

# Sketch on XZ plane
sketch28 = body.newObject("Sketcher::SketchObject", "Sketch027")
sketch28.AttachmentSupport = (doc.getObject("XZ_Plane"), [""])
sketch28.MapMode = "FlatFace"
sketch28.AttachmentOffset = App.Placement(App.Vector(0, 0, -2.8), App.Rotation())
sketch28.addGeometry(Part.Circle(App.Vector(11.1, -165, 0), App.Vector(0, 0, 1), 3), False)
sketch28.addConstraint(Sketcher.Constraint("Diameter", 0, Q("6 mm")))
sketch28.addConstraint(Sketcher.Constraint("DistanceY", 0, 3, -1, 1, Q("165 mm")))
sketch28.addConstraint(Sketcher.Constraint("DistanceX", -1, 1, 0, 3, Q("11.1 mm")))
pocket27 = body.newObject("PartDesign::Pocket", "Pocket026")
pocket27.Profile = sketch28
pocket27.Type = "UpToFirst"
pocket27.Reversed = True

# Sketch on XZ plane
sketch29 = body.newObject("Sketcher::SketchObject", "Sketch028")
sketch29.AttachmentSupport = (doc.getObject("XZ_Plane"), [""])
sketch29.MapMode = "FlatFace"
sketch29.AttachmentOffset = App.Placement(App.Vector(0, 0, -2.8), App.Rotation())
sketch29.addGeometry(Part.Circle(App.Vector(11.1, -311, 0), App.Vector(0, 0, 1), 3), False)
sketch29.addConstraint(Sketcher.Constraint("Diameter", 0, Q("6 mm")))
sketch29.addConstraint(Sketcher.Constraint("DistanceY", 0, 3, -1, 1, Q("311 mm")))
sketch29.addConstraint(Sketcher.Constraint("DistanceX", -1, 1, 0, 3, Q("11.1 mm")))
pocket28 = body.newObject("PartDesign::Pocket", "Pocket027")
pocket28.Profile = sketch29
pocket28.Type = "UpToFirst"
pocket28.Reversed = True

# Sketch on XZ plane
sketch30 = body.newObject("Sketcher::SketchObject", "Sketch029")
sketch30.AttachmentSupport = (doc.getObject("XZ_Plane"), [""])
sketch30.MapMode = "FlatFace"
sketch30.AttachmentOffset = App.Placement(App.Vector(0, 0, -2.8), App.Rotation())
sketch30.addGeometry(Part.Circle(App.Vector(11.1, -44.44, 0), App.Vector(0, 0, 1), 3), False)
sketch30.addConstraint(Sketcher.Constraint("Diameter", 0, Q("6 mm")))
sketch30.addConstraint(Sketcher.Constraint("DistanceX", -1, 1, 0, 3, Q("11.1 mm")))
sketch30.addConstraint(Sketcher.Constraint("DistanceY", 0, 3, -1, 1, Q("44.44 mm")))
pocket29 = body.newObject("PartDesign::Pocket", "Pocket028")
pocket29.Profile = sketch30
pocket29.Type = "UpToFirst"
pocket29.Reversed = True

# Sketch on XZ plane
sketch31 = body.newObject("Sketcher::SketchObject", "Sketch030")
sketch31.AttachmentSupport = (doc.getObject("XZ_Plane"), [""])
sketch31.MapMode = "FlatFace"
sketch31.AttachmentOffset = App.Placement(App.Vector(0, 0, -2.8), App.Rotation())
sketch31.addGeometry(Part.Circle(App.Vector(11.1, -114.44, 0), App.Vector(0, 0, 1), 3), False)
sketch31.addConstraint(Sketcher.Constraint("Diameter", 0, Q("6 mm")))
sketch31.addConstraint(Sketcher.Constraint("DistanceX", -1, 1, 0, 3, Q("11.1 mm")))
sketch31.addConstraint(Sketcher.Constraint("DistanceY", 0, 3, -1, 1, Q("114.44 mm")))
pocket30 = body.newObject("PartDesign::Pocket", "Pocket029")
pocket30.Profile = sketch31
pocket30.Type = "UpToFirst"
pocket30.Reversed = True

# Sketch on XZ plane
sketch32 = body.newObject("Sketcher::SketchObject", "Sketch031")
sketch32.AttachmentSupport = (doc.getObject("XZ_Plane"), [""])
sketch32.MapMode = "FlatFace"
sketch32.AttachmentOffset = App.Placement(App.Vector(0, 0, -2.8), App.Rotation())
sketch32.addGeometry(Part.Circle(App.Vector(11.1, -494.56, 0), App.Vector(0, 0, 1), 3), False)
sketch32.addConstraint(Sketcher.Constraint("Diameter", 0, Q("6 mm")))
sketch32.addConstraint(Sketcher.Constraint("DistanceX", -1, 1, 0, 3, Q("11.1 mm")))
sketch32.addConstraint(Sketcher.Constraint("DistanceY", 0, 3, -1, 1, Q("494.56 mm")))
pocket31 = body.newObject("PartDesign::Pocket", "Pocket030")
pocket31.Profile = sketch32
pocket31.Type = "UpToFirst"
pocket31.Reversed = True

# Sketch on XZ plane
sketch33 = body.newObject("Sketcher::SketchObject", "Sketch032")
sketch33.AttachmentSupport = (doc.getObject("XZ_Plane"), [""])
sketch33.MapMode = "FlatFace"
sketch33.AttachmentOffset = App.Placement(App.Vector(0, 0, -2.8), App.Rotation())
sketch33.addGeometry(Part.Circle(App.Vector(11.1, -564.56, 0), App.Vector(0, 0, 1), 3), False)
sketch33.addConstraint(Sketcher.Constraint("Diameter", 0, Q("6 mm")))
sketch33.addConstraint(Sketcher.Constraint("DistanceX", -1, 1, 0, 3, Q("11.1 mm")))
sketch33.addConstraint(Sketcher.Constraint("DistanceY", 0, 3, -1, 1, Q("564.56 mm")))
pocket32 = body.newObject("PartDesign::Pocket", "Pocket031")
pocket32.Profile = sketch33
pocket32.Type = "UpToFirst"
pocket32.Reversed = True

# Sketch on XZ plane
sketch34 = body.newObject("Sketcher::SketchObject", "Sketch033")
sketch34.AttachmentSupport = (doc.getObject("XZ_Plane"), [""])
sketch34.MapMode = "FlatFace"
sketch34.AttachmentOffset = App.Placement(App.Vector(0, 0, -2.8), App.Rotation())
sketch34.addGeometry(Part.Circle(App.Vector(11.1, -894.61, 0), App.Vector(0, 0, 1), 3), False)
sketch34.addConstraint(Sketcher.Constraint("Diameter", 0, Q("6 mm")))
sketch34.addConstraint(Sketcher.Constraint("DistanceX", -1, 1, 0, 3, Q("11.1 mm")))
sketch34.addConstraint(Sketcher.Constraint("DistanceY", 0, 3, -1, 1, Q("894.61 mm")))
pocket33 = body.newObject("PartDesign::Pocket", "Pocket032")
pocket33.Profile = sketch34
pocket33.Type = "UpToFirst"
pocket33.Reversed = True

# Sketch on XZ plane
sketch35 = body.newObject("Sketcher::SketchObject", "Sketch034")
sketch35.AttachmentSupport = (doc.getObject("XZ_Plane"), [""])
sketch35.MapMode = "FlatFace"
sketch35.AttachmentOffset = App.Placement(App.Vector(0, 0, -2.8), App.Rotation())
sketch35.addGeometry(Part.Circle(App.Vector(11.1, -964.61, 0), App.Vector(0, 0, 1), 3), False)
sketch35.addConstraint(Sketcher.Constraint("Diameter", 0, Q("6 mm")))
sketch35.addConstraint(Sketcher.Constraint("DistanceX", -1, 1, 0, 3, Q("11.1 mm")))
sketch35.addConstraint(Sketcher.Constraint("DistanceY", 0, 3, -1, 1, Q("964.61 mm")))
pocket34 = body.newObject("PartDesign::Pocket", "Pocket033")
pocket34.Profile = sketch35
pocket34.Type = "UpToFirst"
pocket34.Reversed = True

# Sketch on XZ plane
sketch36 = body.newObject("Sketcher::SketchObject", "Sketch035")
sketch36.AttachmentSupport = (doc.getObject("XZ_Plane"), [""])
sketch36.MapMode = "FlatFace"
sketch36.AttachmentOffset = App.Placement(App.Vector(0, 0, -2.8), App.Rotation())
sketch36.addGeometry(Part.Circle(App.Vector(11.1, -1085, 0), App.Vector(0, 0, 1), 3), False)
sketch36.addConstraint(Sketcher.Constraint("Diameter", 0, Q("6 mm")))
sketch36.addConstraint(Sketcher.Constraint("DistanceY", 0, 3, -1, 1, Q("1085 mm")))
sketch36.addConstraint(Sketcher.Constraint("DistanceX", -1, 1, 0, 3, Q("11.1 mm")))
pocket35 = body.newObject("PartDesign::Pocket", "Pocket034")
pocket35.Profile = sketch36
pocket35.Type = "UpToFirst"
pocket35.Reversed = True

# Sketch on XZ plane
sketch37 = body.newObject("Sketcher::SketchObject", "Sketch036")
sketch37.AttachmentSupport = (doc.getObject("XZ_Plane"), [""])
sketch37.MapMode = "FlatFace"
sketch37.AttachmentOffset = App.Placement(App.Vector(0, 0, -2.8), App.Rotation())
sketch37.addGeometry(Part.Circle(App.Vector(11.1, -1231, 0), App.Vector(0, 0, 1), 3), False)
sketch37.addConstraint(Sketcher.Constraint("Diameter", 0, Q("6 mm")))
sketch37.addConstraint(Sketcher.Constraint("DistanceY", 0, 3, -1, 1, Q("1231 mm")))
sketch37.addConstraint(Sketcher.Constraint("DistanceX", -1, 1, 0, 3, Q("11.1 mm")))
pocket36 = body.newObject("PartDesign::Pocket", "Pocket035")
pocket36.Profile = sketch37
pocket36.Type = "UpToFirst"
pocket36.Reversed = True

# Sketch on XZ plane
sketch38 = body.newObject("Sketcher::SketchObject", "Sketch037")
sketch38.AttachmentSupport = (doc.getObject("XZ_Plane"), [""])
sketch38.MapMode = "FlatFace"
sketch38.AttachmentOffset = App.Placement(App.Vector(0, 0, -2.8), App.Rotation())
sketch38.addGeometry(Part.Circle(App.Vector(88.9, -859.61, 0), App.Vector(0, 0, 1), 3), False)
sketch38.addConstraint(Sketcher.Constraint("Diameter", 0, Q("6 mm")))
sketch38.addConstraint(Sketcher.Constraint("DistanceX", -1, 1, 0, 3, Q("88.9 mm")))
sketch38.addConstraint(Sketcher.Constraint("DistanceY", 0, 3, -1, 1, Q("859.61 mm")))
pocket37 = body.newObject("PartDesign::Pocket", "Pocket036")
pocket37.Profile = sketch38
pocket37.Type = "UpToFirst"
pocket37.Reversed = True

# Sketch on XZ plane
sketch39 = body.newObject("Sketcher::SketchObject", "Sketch038")
sketch39.AttachmentSupport = (doc.getObject("XZ_Plane"), [""])
sketch39.MapMode = "FlatFace"
sketch39.AttachmentOffset = App.Placement(App.Vector(0, 0, -2.8), App.Rotation())
sketch39.addGeometry(Part.Circle(App.Vector(11.1, -859.61, 0), App.Vector(0, 0, 1), 3), False)
sketch39.addConstraint(Sketcher.Constraint("Diameter", 0, Q("6 mm")))
sketch39.addConstraint(Sketcher.Constraint("DistanceX", -1, 1, 0, 3, Q("11.1 mm")))
sketch39.addConstraint(Sketcher.Constraint("DistanceY", 0, 3, -1, 1, Q("859.61 mm")))
pocket38 = body.newObject("PartDesign::Pocket", "Pocket037")
pocket38.Profile = sketch39
pocket38.Type = "UpToFirst"
pocket38.Reversed = True

# Sketch on XZ plane
sketch40 = body.newObject("Sketcher::SketchObject", "Sketch039")
sketch40.AttachmentSupport = (doc.getObject("XZ_Plane"), [""])
sketch40.MapMode = "FlatFace"
sketch40.AttachmentOffset = App.Placement(App.Vector(0, 0, -2.8), App.Rotation())
sketch40.addGeometry(Part.Circle(App.Vector(37.99, -1285.31, 0), App.Vector(0, 0, 1), 3), False)
sketch40.addConstraint(Sketcher.Constraint("Diameter", 0, Q("6 mm")))
sketch40.addConstraint(Sketcher.Constraint("DistanceX", -1, 1, 0, 3, Q("37.99 mm")))
sketch40.addConstraint(Sketcher.Constraint("DistanceY", 0, 3, -1, 1, Q("1285.31 mm")))
pocket39 = body.newObject("PartDesign::Pocket", "Pocket038")
pocket39.Profile = sketch40
pocket39.Type = "UpToFirst"
pocket39.Reversed = True

# Sketch on XZ plane
sketch41 = body.newObject("Sketcher::SketchObject", "Sketch040")
sketch41.AttachmentSupport = (doc.getObject("XZ_Plane"), [""])
sketch41.MapMode = "FlatFace"
sketch41.AttachmentOffset = App.Placement(App.Vector(0, 0, -2.8), App.Rotation())
sketch41.addGeometry(Part.Circle(App.Vector(62.01, -1285.31, 0), App.Vector(0, 0, 1), 3), False)
sketch41.addConstraint(Sketcher.Constraint("Diameter", 0, Q("6 mm")))
sketch41.addConstraint(Sketcher.Constraint("DistanceX", -1, 1, 0, 3, Q("62.01 mm")))
sketch41.addConstraint(Sketcher.Constraint("DistanceY", 0, 3, -1, 1, Q("1285.31 mm")))
pocket40 = body.newObject("PartDesign::Pocket", "Pocket039")
pocket40.Profile = sketch41
pocket40.Type = "UpToFirst"
pocket40.Reversed = True

doc.recompute()
